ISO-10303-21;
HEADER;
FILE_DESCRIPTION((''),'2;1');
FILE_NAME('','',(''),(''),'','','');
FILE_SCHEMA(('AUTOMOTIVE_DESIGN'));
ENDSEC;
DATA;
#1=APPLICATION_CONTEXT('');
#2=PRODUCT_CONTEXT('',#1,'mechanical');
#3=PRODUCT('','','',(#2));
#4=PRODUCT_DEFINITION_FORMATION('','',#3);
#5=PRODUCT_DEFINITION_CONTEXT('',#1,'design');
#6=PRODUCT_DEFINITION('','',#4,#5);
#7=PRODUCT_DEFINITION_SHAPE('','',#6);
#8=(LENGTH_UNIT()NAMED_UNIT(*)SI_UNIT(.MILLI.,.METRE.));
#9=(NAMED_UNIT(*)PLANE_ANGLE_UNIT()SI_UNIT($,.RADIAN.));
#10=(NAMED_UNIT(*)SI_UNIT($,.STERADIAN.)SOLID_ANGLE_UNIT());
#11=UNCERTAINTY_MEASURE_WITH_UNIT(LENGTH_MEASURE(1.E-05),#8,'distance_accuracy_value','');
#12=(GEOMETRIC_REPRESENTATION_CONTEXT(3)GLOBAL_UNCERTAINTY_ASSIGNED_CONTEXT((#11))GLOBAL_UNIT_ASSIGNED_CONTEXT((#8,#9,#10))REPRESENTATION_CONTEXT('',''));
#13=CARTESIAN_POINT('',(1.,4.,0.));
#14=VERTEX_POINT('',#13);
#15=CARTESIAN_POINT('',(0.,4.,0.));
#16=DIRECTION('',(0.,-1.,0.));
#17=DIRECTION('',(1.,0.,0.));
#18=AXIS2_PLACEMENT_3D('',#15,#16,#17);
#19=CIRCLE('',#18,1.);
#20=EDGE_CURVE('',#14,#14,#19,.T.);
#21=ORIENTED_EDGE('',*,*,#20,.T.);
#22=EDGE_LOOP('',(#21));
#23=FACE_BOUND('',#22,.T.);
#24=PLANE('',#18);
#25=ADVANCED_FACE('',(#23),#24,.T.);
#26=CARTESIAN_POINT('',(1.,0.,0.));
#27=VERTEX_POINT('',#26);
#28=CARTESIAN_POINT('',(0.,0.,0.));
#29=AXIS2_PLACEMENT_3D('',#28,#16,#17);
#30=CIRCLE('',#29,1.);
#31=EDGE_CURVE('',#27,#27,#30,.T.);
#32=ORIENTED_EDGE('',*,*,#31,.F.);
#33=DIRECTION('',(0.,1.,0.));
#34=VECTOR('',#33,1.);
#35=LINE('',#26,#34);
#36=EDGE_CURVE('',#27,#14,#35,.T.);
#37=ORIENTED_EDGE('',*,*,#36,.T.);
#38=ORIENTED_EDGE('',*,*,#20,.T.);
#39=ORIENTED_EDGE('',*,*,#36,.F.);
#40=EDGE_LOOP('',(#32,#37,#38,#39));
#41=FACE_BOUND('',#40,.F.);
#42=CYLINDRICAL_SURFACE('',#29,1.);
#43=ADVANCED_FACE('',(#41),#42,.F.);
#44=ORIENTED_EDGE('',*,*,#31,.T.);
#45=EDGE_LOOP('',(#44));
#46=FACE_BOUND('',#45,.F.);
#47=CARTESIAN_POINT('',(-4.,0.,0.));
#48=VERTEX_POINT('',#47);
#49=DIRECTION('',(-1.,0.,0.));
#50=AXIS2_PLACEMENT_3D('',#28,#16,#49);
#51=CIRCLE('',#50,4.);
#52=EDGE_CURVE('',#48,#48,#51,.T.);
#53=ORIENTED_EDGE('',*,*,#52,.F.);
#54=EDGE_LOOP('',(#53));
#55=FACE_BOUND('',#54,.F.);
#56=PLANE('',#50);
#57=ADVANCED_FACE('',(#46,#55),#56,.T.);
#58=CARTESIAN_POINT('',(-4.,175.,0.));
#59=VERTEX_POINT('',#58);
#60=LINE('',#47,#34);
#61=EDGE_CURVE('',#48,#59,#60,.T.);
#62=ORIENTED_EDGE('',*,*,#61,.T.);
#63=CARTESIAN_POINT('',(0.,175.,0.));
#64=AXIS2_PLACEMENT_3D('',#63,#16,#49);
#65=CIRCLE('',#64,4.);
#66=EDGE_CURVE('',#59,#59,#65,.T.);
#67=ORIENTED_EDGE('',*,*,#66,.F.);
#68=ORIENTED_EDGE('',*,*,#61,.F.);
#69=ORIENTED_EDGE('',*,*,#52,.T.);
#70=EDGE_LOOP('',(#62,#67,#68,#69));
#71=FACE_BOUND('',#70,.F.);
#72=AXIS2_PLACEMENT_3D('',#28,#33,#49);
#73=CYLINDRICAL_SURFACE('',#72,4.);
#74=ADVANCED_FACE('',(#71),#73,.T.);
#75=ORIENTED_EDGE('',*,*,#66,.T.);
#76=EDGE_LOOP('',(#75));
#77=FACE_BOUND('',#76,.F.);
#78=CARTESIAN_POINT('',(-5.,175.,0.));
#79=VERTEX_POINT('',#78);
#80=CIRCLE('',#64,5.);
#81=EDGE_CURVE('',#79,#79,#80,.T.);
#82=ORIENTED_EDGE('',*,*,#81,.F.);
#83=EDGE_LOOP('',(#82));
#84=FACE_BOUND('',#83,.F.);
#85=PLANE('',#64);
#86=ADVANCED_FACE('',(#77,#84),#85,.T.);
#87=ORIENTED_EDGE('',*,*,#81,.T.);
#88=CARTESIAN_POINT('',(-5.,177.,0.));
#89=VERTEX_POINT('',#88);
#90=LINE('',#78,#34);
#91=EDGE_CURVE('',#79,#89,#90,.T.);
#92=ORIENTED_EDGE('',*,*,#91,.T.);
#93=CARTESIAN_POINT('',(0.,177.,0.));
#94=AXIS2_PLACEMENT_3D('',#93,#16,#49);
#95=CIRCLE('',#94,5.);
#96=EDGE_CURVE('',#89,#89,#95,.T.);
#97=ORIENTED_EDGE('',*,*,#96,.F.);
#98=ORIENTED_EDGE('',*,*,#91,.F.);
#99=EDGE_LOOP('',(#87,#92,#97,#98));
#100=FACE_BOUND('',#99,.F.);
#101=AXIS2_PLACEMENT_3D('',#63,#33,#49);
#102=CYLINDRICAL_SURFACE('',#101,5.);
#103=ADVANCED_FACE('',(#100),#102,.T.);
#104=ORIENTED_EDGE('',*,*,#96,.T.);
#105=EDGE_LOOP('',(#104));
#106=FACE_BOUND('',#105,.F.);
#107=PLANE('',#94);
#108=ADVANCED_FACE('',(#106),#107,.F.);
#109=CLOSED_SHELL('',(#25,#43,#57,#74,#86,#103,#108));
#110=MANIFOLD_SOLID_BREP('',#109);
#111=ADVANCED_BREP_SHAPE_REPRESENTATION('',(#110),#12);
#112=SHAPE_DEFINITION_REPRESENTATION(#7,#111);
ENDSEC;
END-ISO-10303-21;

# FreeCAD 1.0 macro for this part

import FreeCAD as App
import Part
import Sketcher

doc = App.newDocument("Part")
params = doc.addObject("Spreadsheet::Sheet", "Params")
for row, (alias, value) in enumerate([
    ("sketch1_width", "4 mm"),
    ("sketch1_width2", "1 mm"),
    ("sketch1_height", "2 mm"),
    ("sketch1_height2", "175 mm"),
    ("revolution_angle", "360 deg"),
    ("sketch2_diameter", "2 mm"),
    ("pocket1_length", "4 mm"),
], start=1):
    params.set(f"A{row}", alias)
    params.set(f"B{row}", "=" + value)
    params.setAlias(f"B{row}", alias)

body = doc.addObject("PartDesign::Body", "Body")

sketch1 = doc.addObject("Sketcher::SketchObject", "Sketch")
body.addObject(sketch1)
sketch1.AttachmentSupport = (doc.XY_Plane, [""])
sketch1.MapMode = "FlatFace"
sketch1.addGeometry(Part.LineSegment(App.Vector(-4, 0, 0), App.Vector(0, 0, 0)), False)
sketch1.addGeometry(Part.LineSegment(App.Vector(0, 0, 0), App.Vector(0, 177, 0)), False)
sketch1.addGeometry(Part.LineSegment(App.Vector(0, 177, 0), App.Vector(-5, 177, 0)), False)
sketch1.addGeometry(Part.LineSegment(App.Vector(-5, 177, 0), App.Vector(-5, 175, 0)), False)
sketch1.addGeometry(Part.LineSegment(App.Vector(-5, 175, 0), App.Vector(-4, 175, 0)), False)
sketch1.addGeometry(Part.LineSegment(App.Vector(-4, 175, 0), App.Vector(-4, 0, 0)), False)
sketch1.addConstraint(Sketcher.Constraint("Coincident", 0, 2, 1, 1))
sketch1.addConstraint(Sketcher.Constraint("Coincident", 1, 2, 2, 1))
sketch1.addConstraint(Sketcher.Constraint("Coincident", 2, 2, 3, 1))
sketch1.addConstraint(Sketcher.Constraint("Coincident", 3, 2, 4, 1))
sketch1.addConstraint(Sketcher.Constraint("Coincident", 4, 2, 5, 1))
sketch1.addConstraint(Sketcher.Constraint("Coincident", 5, 2, 0, 1))
sketch1.addConstraint(Sketcher.Constraint("Horizontal", 0))
sketch1.addConstraint(Sketcher.Constraint("Vertical", 1))
sketch1.addConstraint(Sketcher.Constraint("Horizontal", 2))
sketch1.addConstraint(Sketcher.Constraint("Vertical", 3))
sketch1.addConstraint(Sketcher.Constraint("Horizontal", 4))
sketch1.addConstraint(Sketcher.Constraint("Vertical", 5))
sketch1.addConstraint(Sketcher.Constraint("Coincident", 0, 2, -1, 1))
sketch1.addConstraint(Sketcher.Constraint("DistanceX", 0, 1, 0, 2, 4.0))
sketch1.addConstraint(Sketcher.Constraint("DistanceX", 4, 1, 4, 2, 1.0))
sketch1.addConstraint(Sketcher.Constraint("DistanceY", 3, 2, 3, 1, 2.0))
sketch1.addConstraint(Sketcher.Constraint("DistanceY", 5, 2, 5, 1, 175.0))
sketch1.setExpression("Constraints[13]", "Params.sketch1_width")
sketch1.setExpression("Constraints[14]", "Params.sketch1_width2")
sketch1.setExpression("Constraints[15]", "Params.sketch1_height")
sketch1.setExpression("Constraints[16]", "Params.sketch1_height2")
revolution = doc.addObject("PartDesign::Revolution", "Revolution")
body.addObject(revolution)
revolution.Profile = sketch1
revolution.ReferenceAxis = (sketch1, ["V_Axis"])
revolution.setExpression("Angle", "Params.revolution_angle")

sketch2 = doc.addObject("Sketcher::SketchObject", "Sketch001")
body.addObject(sketch2)
sketch2.AttachmentSupport = (doc.XZ_Plane, [""])
sketch2.MapMode = "FlatFace"
sketch2.addGeometry(Part.Circle(App.Vector(0, 0, 0), App.Vector(0, 0, 1), 1), False)
sketch2.addConstraint(Sketcher.Constraint("Coincident", 0, 3, -1, 1))
sketch2.addConstraint(Sketcher.Constraint("Diameter", 0, 2.0))
sketch2.setExpression("Constraints[1]", "Params.sketch2_diameter")
pocket1 = doc.addObject("PartDesign::Pocket", "Pocket")
body.addObject(pocket1)
pocket1.Profile = sketch2
pocket1.setExpression("Length", "Params.pocket1_length")

doc.recompute()
